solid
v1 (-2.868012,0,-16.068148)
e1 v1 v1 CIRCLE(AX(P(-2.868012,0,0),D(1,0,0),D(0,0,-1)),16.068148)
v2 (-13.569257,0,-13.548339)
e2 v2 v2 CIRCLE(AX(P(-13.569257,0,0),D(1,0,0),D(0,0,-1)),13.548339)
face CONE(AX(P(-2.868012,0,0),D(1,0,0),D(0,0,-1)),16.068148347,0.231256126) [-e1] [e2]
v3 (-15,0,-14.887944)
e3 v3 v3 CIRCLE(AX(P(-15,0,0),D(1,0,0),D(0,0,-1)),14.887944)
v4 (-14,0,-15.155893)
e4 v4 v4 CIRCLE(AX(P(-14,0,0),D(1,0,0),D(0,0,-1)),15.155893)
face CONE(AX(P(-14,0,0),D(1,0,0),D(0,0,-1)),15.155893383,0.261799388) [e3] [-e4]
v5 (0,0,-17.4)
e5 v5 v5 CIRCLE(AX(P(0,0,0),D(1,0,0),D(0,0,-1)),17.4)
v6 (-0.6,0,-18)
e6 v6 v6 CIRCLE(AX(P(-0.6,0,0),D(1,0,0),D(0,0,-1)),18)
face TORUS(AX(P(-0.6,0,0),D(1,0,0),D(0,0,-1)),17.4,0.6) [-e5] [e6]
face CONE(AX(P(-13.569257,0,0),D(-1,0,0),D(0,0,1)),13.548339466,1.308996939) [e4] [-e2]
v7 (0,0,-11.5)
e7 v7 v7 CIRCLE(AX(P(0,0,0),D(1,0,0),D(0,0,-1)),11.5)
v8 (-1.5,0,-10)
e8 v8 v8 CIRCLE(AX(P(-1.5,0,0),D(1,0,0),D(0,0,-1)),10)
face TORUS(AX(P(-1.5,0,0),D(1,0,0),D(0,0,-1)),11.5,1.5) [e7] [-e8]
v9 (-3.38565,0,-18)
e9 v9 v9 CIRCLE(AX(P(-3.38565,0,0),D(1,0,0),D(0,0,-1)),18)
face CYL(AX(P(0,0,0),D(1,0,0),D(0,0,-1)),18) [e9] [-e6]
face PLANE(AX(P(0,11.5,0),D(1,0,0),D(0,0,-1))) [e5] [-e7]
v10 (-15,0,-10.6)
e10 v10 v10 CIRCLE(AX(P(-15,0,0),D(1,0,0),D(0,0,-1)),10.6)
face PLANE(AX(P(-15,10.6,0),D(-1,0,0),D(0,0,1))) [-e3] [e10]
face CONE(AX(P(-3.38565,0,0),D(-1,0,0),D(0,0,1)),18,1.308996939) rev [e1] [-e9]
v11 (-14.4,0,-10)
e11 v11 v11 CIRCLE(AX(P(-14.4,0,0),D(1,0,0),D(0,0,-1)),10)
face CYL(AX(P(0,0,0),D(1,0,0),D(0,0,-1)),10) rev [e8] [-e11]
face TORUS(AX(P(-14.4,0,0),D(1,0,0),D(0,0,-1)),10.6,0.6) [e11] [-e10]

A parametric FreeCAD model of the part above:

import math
import FreeCAD as App
import Part
import Sketcher
from FreeCAD import Vector
Q = App.Units.Quantity

doc = App.newDocument("Part")
params = doc.addObject("Spreadsheet::Sheet", "Params")
for row, (alias, value) in enumerate([
    ("sketch1_radius", "0.6 mm"),
    ("sketch1_radius2", "1.5 mm"),
    ("sketch1_length", "2 mm"),
    ("sketch1_width", "12.9 mm"),
    ("sketch1_height", "5.9 mm"),
    ("revolution_angle", "360 deg"),
], start=1):
    params.set(f"A{row}", alias)
    params.set(f"B{row}", "=" + value)
    params.setAlias(f"B{row}", alias)

body = doc.addObject("PartDesign::Body", "Body")

sketch1 = body.newObject("Sketcher::SketchObject", "Sketch")
sketch1.AttachmentSupport = (doc.getObject("XY_Plane"), [""])
sketch1.MapMode = "FlatFace"
sketch1.addGeometry([
    Part.LineSegment(Vector(0, 11.5, 0), Vector(0, 17.4, 0)),
    Part.ArcOfCircle(Part.Circle(Vector(-0.6, 17.4, 0), Vector(0, 0, 1), 0.6), math.radians(0), math.radians(90)),
    Part.LineSegment(Vector(-0.6, 18, 0), Vector(-3.38565, 18, 0)),
    Part.LineSegment(Vector(-3.38565, 18, 0), Vector(-2.868012, 16.068148, 0)),
    Part.LineSegment(Vector(-2.868012, 16.068148, 0), Vector(-13.569257, 13.548339, 0)),
    Part.LineSegment(Vector(-13.569257, 13.548339, 0), Vector(-14, 15.155893, 0)),
    Part.LineSegment(Vector(-14, 15.155893, 0), Vector(-15, 14.887944, 0)),
    Part.LineSegment(Vector(-15, 14.887944, 0), Vector(-15, 10.6, 0)),
    Part.ArcOfCircle(Part.Circle(Vector(-14.4, 10.6, 0), Vector(0, 0, 1), 0.6), math.radians(180), math.radians(270)),
    Part.LineSegment(Vector(-14.4, 10, 0), Vector(-1.5, 10, 0)),
    Part.ArcOfCircle(Part.Circle(Vector(-1.5, 11.5, 0), Vector(0, 0, 1), 1.5), math.radians(-90), math.radians(0)),
], False)
sketch1.addConstraint([
    Sketcher.Constraint("Tangent", 0, 2, 1, 1),
    Sketcher.Constraint("Tangent", 1, 2, 2, 1),
    Sketcher.Constraint("Coincident", 2, 2, 3, 1),
    Sketcher.Constraint("Coincident", 3, 2, 4, 1),
    Sketcher.Constraint("Coincident", 4, 2, 5, 1),
    Sketcher.Constraint("Coincident", 5, 2, 6, 1),
    Sketcher.Constraint("Coincident", 6, 2, 7, 1),
    Sketcher.Constraint("Tangent", 7, 2, 8, 1),
    Sketcher.Constraint("Tangent", 8, 2, 9, 1),
    Sketcher.Constraint("Tangent", 9, 2, 10, 1),
    Sketcher.Constraint("Tangent", 10, 2, 0, 1),
    Sketcher.Constraint("Vertical", 0),
    Sketcher.Constraint("Horizontal", 2),
    Sketcher.Constraint("Vertical", 7),
    Sketcher.Constraint("Horizontal", 9),
    Sketcher.Constraint("Equal", 1, 8),
    Sketcher.Constraint("PointOnObject", 0, 2, -2),
    Sketcher.Constraint("Parallel", 3, 5),
    Sketcher.Constraint("Perpendicular", 5, 6),
    Sketcher.Constraint("Radius", 1, 0.6),
    Sketcher.Constraint("Radius", 10, 1.5),
    Sketcher.Constraint("Angle", 3, Q("-75 deg")),
    Sketcher.Constraint("Distance", 3, 2.0),
    Sketcher.Constraint("DistanceX", 9, 1, 9, 2, 12.9),
    Sketcher.Constraint("DistanceY", 0, 1, 0, 2, 5.9),
    Sketcher.Constraint("DistanceY", -1, 1, 1, 2, 18.0),
    Sketcher.Constraint("DistanceX", 5, 2, -1, 1, 14.0),
    Sketcher.Constraint("Angle", 4, Q("-166.75 deg")),
    Sketcher.Constraint("DistanceX", 2, 2, 2, 1, 2.78565),
    Sketcher.Constraint("Distance", 4, 10.993912),
])
sketch1.setExpression("Constraints[19]", "Params.sketch1_radius")
sketch1.setExpression("Constraints[20]", "Params.sketch1_radius2")
sketch1.setExpression("Constraints[22]", "Params.sketch1_length")
sketch1.setExpression("Constraints[23]", "Params.sketch1_width")
sketch1.setExpression("Constraints[24]", "Params.sketch1_height")
revolution = body.newObject("PartDesign::Revolution", "Revolution")
revolution.Profile = sketch1
revolution.ReferenceAxis = (sketch1, ["H_Axis"])
revolution.setExpression("Angle", "Params.revolution_angle")

doc.recompute()
